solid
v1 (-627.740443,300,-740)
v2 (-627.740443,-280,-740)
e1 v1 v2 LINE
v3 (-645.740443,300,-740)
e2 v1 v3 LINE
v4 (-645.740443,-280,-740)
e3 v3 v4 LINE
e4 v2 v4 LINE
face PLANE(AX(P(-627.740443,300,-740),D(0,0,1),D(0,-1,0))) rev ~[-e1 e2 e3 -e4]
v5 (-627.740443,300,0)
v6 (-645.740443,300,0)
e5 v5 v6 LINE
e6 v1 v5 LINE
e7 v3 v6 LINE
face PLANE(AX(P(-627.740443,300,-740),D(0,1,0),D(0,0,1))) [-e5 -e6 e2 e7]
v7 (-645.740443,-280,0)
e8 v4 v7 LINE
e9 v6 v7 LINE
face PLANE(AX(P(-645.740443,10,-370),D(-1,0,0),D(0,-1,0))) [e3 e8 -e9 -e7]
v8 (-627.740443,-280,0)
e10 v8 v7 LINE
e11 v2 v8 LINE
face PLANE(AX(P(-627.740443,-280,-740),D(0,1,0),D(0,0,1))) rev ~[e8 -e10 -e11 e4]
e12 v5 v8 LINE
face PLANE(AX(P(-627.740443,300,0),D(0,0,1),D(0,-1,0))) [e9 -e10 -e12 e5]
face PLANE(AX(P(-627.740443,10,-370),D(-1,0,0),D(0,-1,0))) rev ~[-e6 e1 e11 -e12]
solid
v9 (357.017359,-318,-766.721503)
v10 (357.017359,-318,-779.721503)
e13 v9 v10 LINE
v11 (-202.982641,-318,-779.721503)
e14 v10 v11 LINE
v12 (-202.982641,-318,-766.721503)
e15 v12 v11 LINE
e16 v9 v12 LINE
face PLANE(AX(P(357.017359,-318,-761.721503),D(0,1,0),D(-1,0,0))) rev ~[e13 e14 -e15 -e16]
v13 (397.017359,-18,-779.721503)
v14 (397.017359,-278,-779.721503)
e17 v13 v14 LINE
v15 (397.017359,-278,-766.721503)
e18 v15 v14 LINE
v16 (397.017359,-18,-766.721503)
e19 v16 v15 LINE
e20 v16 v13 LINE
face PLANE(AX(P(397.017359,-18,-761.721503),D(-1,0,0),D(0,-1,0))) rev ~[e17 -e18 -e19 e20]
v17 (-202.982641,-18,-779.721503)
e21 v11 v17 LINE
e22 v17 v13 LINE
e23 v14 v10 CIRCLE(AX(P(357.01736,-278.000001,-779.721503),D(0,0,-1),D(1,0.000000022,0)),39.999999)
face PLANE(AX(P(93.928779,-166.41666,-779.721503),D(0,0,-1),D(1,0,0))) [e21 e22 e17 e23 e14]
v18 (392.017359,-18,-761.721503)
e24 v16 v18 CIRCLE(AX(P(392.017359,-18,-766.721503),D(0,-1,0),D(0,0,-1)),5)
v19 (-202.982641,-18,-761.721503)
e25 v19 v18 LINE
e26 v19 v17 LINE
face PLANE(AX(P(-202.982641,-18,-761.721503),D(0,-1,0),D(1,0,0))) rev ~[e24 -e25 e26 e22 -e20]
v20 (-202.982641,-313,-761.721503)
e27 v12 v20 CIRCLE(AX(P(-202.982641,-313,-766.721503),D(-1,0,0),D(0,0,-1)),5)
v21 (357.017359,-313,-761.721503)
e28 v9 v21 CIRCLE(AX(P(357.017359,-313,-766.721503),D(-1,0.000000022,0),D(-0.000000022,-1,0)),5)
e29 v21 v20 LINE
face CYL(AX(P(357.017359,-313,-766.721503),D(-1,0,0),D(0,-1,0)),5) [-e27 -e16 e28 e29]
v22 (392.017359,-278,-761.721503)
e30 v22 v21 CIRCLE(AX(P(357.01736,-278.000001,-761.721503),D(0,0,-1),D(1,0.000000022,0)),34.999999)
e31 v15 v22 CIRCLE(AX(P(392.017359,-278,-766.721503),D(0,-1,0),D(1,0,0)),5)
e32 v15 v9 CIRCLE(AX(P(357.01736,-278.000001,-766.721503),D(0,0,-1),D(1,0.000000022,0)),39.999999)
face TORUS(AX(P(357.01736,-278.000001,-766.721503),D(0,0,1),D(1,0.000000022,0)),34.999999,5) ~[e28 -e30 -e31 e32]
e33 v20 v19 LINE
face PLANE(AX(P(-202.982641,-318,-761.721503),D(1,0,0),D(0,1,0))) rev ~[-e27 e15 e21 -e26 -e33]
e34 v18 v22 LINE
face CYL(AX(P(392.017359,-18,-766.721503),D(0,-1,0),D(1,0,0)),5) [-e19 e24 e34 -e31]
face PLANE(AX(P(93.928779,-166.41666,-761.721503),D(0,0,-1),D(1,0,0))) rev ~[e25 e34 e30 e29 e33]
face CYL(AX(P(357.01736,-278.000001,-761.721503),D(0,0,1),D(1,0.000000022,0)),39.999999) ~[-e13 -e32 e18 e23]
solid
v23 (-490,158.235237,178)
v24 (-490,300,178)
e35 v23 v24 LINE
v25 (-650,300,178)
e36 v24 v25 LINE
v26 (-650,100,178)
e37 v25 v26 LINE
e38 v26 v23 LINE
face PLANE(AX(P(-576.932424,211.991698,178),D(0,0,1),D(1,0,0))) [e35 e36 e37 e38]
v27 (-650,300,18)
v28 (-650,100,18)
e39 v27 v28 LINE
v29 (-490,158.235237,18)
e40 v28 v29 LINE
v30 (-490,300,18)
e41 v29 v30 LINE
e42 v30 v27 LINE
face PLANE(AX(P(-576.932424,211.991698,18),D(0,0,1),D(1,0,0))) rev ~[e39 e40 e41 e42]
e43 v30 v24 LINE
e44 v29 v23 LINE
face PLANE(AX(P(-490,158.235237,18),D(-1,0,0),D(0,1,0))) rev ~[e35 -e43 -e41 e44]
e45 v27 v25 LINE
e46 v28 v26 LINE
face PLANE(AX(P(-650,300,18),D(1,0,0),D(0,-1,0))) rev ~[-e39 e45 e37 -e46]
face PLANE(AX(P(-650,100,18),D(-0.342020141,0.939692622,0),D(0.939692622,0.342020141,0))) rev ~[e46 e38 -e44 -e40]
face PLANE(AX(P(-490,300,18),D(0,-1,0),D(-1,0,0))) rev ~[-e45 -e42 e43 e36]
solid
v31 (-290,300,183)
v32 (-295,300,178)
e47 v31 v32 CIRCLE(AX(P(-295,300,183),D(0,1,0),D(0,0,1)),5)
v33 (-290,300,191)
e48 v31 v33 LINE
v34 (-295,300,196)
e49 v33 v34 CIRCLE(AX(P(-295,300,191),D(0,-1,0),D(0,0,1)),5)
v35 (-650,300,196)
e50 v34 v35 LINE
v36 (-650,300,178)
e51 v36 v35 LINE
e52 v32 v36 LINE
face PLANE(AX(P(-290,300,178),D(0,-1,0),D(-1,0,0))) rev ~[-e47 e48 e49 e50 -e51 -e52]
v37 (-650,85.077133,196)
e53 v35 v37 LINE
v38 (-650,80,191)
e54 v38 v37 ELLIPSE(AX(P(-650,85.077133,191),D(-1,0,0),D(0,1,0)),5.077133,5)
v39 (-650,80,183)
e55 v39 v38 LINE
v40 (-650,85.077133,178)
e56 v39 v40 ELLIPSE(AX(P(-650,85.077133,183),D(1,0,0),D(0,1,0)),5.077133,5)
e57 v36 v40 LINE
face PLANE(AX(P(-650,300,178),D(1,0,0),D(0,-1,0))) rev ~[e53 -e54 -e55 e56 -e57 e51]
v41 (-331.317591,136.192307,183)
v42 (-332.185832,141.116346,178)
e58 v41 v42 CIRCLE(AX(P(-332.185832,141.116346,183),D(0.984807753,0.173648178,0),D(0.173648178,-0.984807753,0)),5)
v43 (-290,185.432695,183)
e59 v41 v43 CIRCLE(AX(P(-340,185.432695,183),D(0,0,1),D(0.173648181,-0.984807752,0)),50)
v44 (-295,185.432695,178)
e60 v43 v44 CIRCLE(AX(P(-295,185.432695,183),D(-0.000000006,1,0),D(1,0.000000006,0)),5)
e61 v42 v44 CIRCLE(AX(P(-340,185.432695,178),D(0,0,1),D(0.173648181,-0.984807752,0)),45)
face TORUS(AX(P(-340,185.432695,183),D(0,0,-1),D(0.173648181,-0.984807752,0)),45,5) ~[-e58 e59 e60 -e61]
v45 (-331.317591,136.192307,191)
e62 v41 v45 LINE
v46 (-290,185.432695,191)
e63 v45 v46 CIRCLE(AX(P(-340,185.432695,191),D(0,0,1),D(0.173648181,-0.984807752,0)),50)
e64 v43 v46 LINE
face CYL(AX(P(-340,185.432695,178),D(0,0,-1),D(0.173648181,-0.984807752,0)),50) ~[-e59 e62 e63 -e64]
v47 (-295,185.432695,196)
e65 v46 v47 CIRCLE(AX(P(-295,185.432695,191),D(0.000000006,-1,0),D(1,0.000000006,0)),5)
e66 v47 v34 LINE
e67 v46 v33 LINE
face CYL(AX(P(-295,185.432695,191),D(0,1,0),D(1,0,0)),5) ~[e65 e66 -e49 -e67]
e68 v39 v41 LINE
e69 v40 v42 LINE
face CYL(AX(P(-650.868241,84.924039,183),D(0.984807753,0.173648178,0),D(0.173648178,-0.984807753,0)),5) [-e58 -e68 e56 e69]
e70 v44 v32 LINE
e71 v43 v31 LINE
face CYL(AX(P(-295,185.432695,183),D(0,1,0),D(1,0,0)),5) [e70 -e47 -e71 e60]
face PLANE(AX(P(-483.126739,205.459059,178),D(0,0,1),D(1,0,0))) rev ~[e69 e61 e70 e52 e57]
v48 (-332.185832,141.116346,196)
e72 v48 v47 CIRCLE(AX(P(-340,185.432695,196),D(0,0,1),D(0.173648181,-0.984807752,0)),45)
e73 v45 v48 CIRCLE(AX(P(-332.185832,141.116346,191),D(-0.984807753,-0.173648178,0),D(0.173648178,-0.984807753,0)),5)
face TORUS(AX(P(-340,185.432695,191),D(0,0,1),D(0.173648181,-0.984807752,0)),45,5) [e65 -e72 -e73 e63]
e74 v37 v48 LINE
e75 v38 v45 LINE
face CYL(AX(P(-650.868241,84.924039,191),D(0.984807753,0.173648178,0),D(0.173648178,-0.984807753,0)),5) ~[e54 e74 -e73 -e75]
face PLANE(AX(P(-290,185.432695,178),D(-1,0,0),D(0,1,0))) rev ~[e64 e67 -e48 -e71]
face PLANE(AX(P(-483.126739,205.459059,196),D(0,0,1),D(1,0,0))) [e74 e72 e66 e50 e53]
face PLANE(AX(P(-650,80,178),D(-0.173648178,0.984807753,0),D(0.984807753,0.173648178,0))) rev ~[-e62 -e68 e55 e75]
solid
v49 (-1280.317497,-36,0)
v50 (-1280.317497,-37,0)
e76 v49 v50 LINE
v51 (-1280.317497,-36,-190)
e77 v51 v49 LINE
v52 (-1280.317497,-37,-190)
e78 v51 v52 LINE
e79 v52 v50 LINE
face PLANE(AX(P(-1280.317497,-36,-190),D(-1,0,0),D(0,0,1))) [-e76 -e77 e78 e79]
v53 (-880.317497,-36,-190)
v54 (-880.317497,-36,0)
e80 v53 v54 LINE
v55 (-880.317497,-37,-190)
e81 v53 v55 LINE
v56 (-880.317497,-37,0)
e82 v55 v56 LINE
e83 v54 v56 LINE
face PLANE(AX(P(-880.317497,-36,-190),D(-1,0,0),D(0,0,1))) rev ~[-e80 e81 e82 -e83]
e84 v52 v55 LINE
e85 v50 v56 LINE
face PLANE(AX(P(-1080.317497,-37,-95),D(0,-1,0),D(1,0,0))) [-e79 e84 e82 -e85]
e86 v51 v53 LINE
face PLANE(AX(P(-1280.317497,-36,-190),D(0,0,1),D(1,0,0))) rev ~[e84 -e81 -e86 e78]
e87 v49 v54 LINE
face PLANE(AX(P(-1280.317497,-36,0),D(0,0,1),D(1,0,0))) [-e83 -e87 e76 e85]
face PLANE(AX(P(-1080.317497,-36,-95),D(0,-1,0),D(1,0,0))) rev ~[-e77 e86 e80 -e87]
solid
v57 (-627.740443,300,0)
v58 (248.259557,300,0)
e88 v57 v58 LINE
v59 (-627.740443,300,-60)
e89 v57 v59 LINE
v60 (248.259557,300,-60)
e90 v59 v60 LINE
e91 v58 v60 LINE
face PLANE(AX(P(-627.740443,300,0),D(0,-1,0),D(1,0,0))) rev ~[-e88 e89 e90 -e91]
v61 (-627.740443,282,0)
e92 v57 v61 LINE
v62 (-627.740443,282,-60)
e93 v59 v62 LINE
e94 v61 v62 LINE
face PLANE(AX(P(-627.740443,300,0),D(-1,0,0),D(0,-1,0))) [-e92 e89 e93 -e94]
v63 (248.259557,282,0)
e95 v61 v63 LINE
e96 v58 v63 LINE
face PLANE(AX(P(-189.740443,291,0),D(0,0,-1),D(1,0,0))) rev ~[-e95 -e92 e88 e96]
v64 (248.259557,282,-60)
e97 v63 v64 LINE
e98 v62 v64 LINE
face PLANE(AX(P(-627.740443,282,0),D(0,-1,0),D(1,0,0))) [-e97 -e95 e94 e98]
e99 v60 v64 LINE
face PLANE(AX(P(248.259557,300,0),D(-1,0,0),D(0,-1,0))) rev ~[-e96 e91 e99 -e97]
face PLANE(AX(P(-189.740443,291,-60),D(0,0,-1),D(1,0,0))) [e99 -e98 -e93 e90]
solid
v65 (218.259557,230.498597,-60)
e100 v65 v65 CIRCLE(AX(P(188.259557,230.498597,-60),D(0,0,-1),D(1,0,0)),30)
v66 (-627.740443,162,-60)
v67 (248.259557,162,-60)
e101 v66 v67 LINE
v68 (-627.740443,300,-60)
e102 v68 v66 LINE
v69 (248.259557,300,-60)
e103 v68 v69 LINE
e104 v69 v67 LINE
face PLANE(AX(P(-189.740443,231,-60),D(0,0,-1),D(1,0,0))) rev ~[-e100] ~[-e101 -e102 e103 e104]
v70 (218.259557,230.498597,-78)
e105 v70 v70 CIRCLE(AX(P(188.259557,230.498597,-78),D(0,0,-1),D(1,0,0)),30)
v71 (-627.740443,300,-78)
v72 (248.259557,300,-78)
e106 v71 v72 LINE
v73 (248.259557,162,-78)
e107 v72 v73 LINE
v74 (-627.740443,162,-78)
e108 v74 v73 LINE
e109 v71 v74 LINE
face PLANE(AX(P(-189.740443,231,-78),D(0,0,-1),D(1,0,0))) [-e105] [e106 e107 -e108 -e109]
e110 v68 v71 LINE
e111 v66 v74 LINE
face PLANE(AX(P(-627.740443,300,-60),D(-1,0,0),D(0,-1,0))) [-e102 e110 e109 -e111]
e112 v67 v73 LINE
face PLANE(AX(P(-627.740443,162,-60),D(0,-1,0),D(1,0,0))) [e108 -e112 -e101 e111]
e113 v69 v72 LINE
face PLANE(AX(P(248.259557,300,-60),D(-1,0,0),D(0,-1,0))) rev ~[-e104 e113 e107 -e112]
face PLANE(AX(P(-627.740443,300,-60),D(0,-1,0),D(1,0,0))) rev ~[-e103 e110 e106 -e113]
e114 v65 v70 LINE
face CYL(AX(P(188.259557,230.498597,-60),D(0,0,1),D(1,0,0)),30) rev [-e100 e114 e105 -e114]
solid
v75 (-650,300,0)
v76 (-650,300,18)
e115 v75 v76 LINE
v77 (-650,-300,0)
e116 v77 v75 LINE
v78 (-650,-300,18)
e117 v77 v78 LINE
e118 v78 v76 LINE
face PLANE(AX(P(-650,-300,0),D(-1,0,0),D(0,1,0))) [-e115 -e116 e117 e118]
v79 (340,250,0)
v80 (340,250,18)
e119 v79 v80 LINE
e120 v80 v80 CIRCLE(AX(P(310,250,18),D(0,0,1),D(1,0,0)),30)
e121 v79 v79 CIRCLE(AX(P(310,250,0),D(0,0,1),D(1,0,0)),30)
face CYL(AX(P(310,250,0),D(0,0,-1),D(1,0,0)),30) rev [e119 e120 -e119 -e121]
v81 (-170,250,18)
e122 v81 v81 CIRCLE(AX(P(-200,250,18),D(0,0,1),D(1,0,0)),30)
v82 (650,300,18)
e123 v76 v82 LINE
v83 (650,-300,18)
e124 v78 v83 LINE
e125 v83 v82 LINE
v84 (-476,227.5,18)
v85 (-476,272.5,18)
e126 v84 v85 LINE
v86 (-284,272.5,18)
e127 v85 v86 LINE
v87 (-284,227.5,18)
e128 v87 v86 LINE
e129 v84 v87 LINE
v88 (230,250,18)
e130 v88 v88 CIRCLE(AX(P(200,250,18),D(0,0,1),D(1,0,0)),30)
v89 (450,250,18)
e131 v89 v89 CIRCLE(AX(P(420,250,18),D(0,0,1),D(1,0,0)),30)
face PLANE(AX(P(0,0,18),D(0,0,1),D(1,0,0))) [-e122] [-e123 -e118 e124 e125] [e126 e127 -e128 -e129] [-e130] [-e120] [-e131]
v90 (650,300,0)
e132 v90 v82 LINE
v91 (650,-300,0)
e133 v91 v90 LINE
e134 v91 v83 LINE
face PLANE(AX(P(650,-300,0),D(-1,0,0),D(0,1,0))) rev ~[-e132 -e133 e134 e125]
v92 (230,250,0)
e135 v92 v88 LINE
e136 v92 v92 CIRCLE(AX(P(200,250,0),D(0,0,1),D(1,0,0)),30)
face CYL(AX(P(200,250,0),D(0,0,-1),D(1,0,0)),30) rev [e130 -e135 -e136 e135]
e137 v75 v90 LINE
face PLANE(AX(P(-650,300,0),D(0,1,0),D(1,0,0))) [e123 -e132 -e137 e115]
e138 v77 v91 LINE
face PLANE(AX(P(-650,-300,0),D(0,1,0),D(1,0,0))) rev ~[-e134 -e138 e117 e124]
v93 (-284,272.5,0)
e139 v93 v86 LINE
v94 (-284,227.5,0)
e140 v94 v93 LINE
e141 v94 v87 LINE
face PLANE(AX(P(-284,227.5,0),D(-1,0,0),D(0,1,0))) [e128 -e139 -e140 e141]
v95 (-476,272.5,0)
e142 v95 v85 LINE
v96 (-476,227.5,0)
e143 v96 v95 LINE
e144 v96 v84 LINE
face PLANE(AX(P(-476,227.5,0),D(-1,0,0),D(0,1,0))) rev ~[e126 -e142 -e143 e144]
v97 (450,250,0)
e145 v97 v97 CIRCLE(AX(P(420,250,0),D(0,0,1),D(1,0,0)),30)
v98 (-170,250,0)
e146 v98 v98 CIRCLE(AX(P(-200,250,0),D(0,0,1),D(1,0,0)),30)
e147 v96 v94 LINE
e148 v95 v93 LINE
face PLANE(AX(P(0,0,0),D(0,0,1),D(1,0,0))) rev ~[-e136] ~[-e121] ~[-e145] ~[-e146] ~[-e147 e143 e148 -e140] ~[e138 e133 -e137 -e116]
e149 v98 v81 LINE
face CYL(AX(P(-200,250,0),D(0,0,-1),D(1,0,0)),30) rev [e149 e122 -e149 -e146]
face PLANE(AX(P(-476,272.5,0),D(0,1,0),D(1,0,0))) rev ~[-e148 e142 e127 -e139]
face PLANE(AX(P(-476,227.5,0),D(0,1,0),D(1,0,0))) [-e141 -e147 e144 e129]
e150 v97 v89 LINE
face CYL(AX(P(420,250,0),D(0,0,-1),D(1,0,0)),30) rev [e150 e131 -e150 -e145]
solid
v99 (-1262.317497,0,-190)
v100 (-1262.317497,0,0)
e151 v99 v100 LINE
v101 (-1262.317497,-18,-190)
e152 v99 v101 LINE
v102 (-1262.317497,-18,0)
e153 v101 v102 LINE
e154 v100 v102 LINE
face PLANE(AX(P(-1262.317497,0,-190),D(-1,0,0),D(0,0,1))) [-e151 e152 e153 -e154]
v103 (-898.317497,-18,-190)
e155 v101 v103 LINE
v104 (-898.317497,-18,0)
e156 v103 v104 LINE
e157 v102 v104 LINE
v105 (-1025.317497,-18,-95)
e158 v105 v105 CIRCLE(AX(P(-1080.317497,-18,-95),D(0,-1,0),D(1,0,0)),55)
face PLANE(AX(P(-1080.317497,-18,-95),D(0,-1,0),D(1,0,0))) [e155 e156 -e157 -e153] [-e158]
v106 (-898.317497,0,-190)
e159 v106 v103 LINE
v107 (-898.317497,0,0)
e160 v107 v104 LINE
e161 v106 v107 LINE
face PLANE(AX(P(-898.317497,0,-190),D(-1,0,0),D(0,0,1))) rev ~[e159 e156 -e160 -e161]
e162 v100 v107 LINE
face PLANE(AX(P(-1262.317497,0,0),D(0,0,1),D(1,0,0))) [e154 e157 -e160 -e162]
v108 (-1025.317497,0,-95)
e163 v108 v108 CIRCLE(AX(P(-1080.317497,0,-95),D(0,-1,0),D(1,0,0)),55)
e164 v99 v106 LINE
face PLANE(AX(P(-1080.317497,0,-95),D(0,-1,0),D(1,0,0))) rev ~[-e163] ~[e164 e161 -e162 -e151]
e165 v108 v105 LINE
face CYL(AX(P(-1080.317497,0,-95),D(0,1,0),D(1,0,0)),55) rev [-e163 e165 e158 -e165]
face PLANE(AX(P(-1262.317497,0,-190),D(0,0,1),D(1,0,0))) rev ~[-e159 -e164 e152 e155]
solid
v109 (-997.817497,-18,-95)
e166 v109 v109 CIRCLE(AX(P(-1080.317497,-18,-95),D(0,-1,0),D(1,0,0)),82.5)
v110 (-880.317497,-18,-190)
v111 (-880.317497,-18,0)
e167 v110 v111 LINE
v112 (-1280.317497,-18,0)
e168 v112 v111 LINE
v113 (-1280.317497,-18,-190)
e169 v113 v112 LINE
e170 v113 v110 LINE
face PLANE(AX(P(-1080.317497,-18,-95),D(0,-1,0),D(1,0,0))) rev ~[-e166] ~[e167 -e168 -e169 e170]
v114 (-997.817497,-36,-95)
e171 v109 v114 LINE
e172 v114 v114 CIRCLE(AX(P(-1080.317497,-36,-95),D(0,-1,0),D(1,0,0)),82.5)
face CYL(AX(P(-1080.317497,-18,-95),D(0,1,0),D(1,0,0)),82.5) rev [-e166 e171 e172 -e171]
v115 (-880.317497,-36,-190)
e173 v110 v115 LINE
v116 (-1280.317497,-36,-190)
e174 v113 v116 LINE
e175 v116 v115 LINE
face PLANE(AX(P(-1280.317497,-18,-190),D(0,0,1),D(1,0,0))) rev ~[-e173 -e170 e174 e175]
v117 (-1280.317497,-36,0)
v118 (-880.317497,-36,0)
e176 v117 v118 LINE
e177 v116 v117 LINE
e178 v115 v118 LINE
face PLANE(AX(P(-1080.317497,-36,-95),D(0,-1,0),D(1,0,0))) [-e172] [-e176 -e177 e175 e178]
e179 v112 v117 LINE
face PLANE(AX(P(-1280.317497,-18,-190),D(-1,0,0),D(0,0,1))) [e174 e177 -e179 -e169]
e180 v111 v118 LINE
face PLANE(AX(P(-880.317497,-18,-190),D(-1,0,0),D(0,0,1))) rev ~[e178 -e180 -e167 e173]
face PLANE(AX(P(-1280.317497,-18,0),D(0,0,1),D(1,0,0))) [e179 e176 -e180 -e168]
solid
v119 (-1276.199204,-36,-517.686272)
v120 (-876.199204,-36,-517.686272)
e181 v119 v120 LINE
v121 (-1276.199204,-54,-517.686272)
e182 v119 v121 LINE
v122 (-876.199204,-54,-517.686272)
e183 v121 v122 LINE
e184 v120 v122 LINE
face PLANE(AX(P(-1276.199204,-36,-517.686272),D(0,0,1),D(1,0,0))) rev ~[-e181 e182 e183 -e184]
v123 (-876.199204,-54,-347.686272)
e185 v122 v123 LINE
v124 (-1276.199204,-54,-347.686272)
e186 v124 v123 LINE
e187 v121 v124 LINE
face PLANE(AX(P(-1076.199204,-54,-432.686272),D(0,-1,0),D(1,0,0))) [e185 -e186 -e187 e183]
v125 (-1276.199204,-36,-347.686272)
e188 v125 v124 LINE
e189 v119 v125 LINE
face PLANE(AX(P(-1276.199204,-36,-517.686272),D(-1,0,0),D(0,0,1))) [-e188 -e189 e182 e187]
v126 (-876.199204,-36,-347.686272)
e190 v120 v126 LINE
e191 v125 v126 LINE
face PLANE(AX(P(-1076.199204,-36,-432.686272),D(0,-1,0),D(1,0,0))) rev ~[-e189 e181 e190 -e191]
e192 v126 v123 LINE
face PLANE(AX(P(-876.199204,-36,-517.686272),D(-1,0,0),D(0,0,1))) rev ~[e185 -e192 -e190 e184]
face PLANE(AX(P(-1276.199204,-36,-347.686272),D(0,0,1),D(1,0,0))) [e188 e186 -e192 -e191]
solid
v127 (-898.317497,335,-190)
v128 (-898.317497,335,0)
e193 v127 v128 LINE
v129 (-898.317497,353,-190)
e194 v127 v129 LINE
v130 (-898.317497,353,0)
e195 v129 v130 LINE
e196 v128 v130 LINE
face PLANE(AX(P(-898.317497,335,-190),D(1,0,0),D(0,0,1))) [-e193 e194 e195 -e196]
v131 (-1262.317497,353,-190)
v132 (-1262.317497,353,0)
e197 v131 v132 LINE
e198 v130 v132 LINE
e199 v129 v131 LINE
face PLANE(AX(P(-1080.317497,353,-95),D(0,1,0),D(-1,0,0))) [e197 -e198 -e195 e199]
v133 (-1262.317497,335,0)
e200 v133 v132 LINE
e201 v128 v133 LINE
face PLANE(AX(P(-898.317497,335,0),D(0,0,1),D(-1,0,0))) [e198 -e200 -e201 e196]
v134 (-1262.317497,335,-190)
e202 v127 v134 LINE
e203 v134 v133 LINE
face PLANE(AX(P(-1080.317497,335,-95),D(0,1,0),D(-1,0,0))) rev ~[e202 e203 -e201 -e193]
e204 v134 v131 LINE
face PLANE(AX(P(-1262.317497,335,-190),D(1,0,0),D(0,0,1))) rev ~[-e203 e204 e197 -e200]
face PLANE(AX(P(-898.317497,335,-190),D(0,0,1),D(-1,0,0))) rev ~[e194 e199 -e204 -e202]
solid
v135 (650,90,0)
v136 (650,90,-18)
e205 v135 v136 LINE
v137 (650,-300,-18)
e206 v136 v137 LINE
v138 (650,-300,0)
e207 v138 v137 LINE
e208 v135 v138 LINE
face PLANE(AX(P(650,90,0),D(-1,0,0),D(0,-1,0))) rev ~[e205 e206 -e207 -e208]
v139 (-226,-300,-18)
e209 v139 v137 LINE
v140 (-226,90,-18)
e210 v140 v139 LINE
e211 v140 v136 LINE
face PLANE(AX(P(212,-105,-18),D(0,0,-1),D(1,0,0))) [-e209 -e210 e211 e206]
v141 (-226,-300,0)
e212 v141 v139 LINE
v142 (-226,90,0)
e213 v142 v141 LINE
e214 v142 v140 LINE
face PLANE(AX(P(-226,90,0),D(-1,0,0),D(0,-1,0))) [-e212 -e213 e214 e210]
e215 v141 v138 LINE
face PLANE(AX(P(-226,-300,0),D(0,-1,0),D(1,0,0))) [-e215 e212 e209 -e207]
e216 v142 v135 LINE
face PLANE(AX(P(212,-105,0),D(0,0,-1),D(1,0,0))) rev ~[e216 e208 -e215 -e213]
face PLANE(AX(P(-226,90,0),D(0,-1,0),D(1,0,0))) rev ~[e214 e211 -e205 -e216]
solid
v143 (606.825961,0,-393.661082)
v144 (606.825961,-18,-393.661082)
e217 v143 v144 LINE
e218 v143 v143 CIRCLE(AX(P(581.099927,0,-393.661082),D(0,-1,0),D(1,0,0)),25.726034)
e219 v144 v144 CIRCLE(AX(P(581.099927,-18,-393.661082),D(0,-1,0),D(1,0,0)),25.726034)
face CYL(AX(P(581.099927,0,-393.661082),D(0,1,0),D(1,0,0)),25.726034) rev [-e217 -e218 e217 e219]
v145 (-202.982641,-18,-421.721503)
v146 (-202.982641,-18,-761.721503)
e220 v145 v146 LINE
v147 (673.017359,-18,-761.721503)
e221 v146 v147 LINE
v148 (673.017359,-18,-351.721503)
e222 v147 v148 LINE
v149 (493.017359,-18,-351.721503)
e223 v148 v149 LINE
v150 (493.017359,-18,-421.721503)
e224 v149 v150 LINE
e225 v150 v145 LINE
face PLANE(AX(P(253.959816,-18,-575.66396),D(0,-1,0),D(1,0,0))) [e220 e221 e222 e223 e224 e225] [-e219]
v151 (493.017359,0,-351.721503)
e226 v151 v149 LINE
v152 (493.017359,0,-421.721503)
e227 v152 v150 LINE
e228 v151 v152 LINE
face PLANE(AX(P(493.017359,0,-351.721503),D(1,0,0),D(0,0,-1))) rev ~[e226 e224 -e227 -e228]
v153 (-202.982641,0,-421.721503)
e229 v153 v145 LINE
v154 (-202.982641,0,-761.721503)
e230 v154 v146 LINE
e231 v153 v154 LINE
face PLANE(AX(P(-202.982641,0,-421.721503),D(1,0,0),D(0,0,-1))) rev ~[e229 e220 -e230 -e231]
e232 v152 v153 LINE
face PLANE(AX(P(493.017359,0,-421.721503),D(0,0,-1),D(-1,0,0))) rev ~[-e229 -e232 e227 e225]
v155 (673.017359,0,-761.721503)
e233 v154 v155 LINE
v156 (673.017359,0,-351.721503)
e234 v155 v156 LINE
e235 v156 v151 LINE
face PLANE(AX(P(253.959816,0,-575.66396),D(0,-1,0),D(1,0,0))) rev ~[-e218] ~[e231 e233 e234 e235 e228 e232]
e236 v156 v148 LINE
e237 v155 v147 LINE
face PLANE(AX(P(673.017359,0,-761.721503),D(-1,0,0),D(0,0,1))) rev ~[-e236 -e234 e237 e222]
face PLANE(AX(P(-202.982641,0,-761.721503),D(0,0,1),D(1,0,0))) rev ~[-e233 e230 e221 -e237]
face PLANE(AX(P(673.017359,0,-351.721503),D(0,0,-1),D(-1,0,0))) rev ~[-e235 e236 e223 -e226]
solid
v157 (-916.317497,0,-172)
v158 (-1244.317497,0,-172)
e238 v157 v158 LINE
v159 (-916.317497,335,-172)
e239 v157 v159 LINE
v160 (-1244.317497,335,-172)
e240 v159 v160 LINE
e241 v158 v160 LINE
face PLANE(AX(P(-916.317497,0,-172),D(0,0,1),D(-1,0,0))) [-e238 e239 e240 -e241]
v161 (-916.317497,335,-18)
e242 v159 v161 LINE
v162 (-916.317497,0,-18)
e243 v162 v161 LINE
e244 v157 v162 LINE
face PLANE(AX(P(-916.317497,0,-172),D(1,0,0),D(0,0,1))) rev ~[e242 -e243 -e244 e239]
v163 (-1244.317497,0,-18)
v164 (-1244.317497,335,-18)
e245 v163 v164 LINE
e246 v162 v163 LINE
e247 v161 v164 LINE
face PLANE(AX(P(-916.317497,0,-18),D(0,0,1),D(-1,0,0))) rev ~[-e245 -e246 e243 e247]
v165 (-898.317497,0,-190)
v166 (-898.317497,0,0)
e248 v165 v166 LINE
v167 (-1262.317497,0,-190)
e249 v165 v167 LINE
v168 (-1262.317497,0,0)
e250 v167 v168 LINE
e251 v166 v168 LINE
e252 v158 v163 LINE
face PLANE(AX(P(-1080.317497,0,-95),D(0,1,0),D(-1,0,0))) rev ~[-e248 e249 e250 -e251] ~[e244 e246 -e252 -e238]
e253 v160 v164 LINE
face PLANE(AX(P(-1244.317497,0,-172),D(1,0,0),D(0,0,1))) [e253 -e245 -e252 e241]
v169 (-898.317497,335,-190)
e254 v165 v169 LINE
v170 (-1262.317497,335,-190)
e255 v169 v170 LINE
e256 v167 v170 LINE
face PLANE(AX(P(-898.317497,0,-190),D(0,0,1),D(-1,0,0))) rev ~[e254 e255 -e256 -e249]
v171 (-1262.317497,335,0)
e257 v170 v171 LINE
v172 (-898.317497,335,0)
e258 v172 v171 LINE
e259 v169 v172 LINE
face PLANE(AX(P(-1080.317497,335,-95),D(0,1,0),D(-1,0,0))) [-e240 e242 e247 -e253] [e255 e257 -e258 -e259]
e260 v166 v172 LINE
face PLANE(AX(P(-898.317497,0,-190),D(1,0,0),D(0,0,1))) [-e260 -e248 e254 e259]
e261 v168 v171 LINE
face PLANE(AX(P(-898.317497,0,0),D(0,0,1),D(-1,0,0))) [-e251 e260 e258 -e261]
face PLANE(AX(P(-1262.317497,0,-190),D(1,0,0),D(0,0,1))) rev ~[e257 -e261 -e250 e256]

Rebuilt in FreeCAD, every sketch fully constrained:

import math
import FreeCAD as App
import Part
import Sketcher
from FreeCAD import Vector
Q = App.Units.Quantity


def edges_at(feature, points):
    """Names of the edges that pass closest to the given points."""
    edges = feature.Shape.Edges
    near = lambda p: min(range(len(edges)), key=lambda i: edges[i].distToShape(Part.Vertex(*p))[0])
    return sorted({f"Edge{near(p) + 1}" for p in points})


def add_polygon(sketch, points):
    """Adds a closed chain of lines whose ends are joined by coincident constraints."""
    first, n = sketch.GeometryCount, len(points)
    for a, b in zip(points, points[1:] + points[:1]):
        sketch.addGeometry(Part.LineSegment(App.Vector(*a, 0), App.Vector(*b, 0)), False)
    for i in range(n):
        sketch.addConstraint(Sketcher.Constraint("Coincident", first + i, 2, first + (i + 1) % n, 1))

doc = App.newDocument("Part")
body = doc.addObject("PartDesign::Body", "Body")

sketch1 = body.newObject("Sketcher::SketchObject", "Sketch")
sketch1.AttachmentSupport = (doc.getObject("XY_Plane"), [""])
sketch1.MapMode = "FlatFace"
add_polygon(sketch1, [(-650, 300), (-650, -300), (650, -300), (650, 300)])
add_polygon(sketch1, [(-284, 228), (-476, 228), (-476, 272), (-284, 272)])
sketch1.addGeometry(Part.Circle(Vector(-200, 250, 0), Vector(0, 0, 1), 30), False)
sketch1.addGeometry(Part.Circle(Vector(200, 250, 0), Vector(0, 0, 1), 30), False)
sketch1.addGeometry(Part.Circle(Vector(310, 250, 0), Vector(0, 0, 1), 30), False)
sketch1.addGeometry(Part.Circle(Vector(420, 250, 0), Vector(0, 0, 1), 30), False)
sketch1.addConstraint(Sketcher.Constraint("Vertical", 0))
sketch1.addConstraint(Sketcher.Constraint("Horizontal", 1))
sketch1.addConstraint(Sketcher.Constraint("Vertical", 2))
sketch1.addConstraint(Sketcher.Constraint("Horizontal", 3))
sketch1.addConstraint(Sketcher.Constraint("Horizontal", 4))
sketch1.addConstraint(Sketcher.Constraint("Vertical", 5))
sketch1.addConstraint(Sketcher.Constraint("Horizontal", 6))
sketch1.addConstraint(Sketcher.Constraint("Vertical", 7))
sketch1.addConstraint(Sketcher.Constraint("Equal", 8, 9))
sketch1.addConstraint(Sketcher.Constraint("Equal", 9, 10))
sketch1.addConstraint(Sketcher.Constraint("Equal", 10, 11))
sketch1.addConstraint(Sketcher.Constraint("Symmetric", 0, 2, 2, 2, -1, 1))
sketch1.addConstraint(Sketcher.Constraint("Symmetric", 8, 3, 9, 3, -2))
sketch1.addConstraint(Sketcher.Constraint("Horizontal", 9, 3, 10, 3))
sketch1.addConstraint(Sketcher.Constraint("Horizontal", 10, 3, 11, 3))
sketch1.addConstraint(Sketcher.Constraint("Diameter", 8, 60.0))
sketch1.addConstraint(Sketcher.Constraint("DistanceX", 1, 1, 1, 2, 1300.0))
sketch1.addConstraint(Sketcher.Constraint("DistanceX", 4, 2, 4, 1, 192.0))
sketch1.addConstraint(Sketcher.Constraint("DistanceY", 0, 2, 0, 1, 600.0))
sketch1.addConstraint(Sketcher.Constraint("DistanceY", 5, 1, 5, 2, 45.0))
sketch1.addConstraint(Sketcher.Constraint("DistanceX", 8, 3, -1, 1, 200.0))
sketch1.addConstraint(Sketcher.Constraint("DistanceY", -1, 1, 8, 3, 250.0))
sketch1.addConstraint(Sketcher.Constraint("DistanceX", -1, 1, 10, 3, 310.0))
sketch1.addConstraint(Sketcher.Constraint("DistanceX", -1, 1, 11, 3, 420.0))
sketch1.addConstraint(Sketcher.Constraint("DistanceX", 4, 2, -1, 1, 476.0))
sketch1.addConstraint(Sketcher.Constraint("DistanceY", -1, 1, 4, 2, 227.5))
pad1 = body.newObject("PartDesign::Pad", "Pad")
pad1.Profile = sketch1
pad1.Length = 18
body2 = doc.addObject("PartDesign::Body", "Body001")

sketch2 = body2.newObject("Sketcher::SketchObject", "Sketch001")
sketch2.AttachmentSupport = (doc.getObject("XY_Plane001"), [""])
sketch2.MapMode = "FlatFace"
add_polygon(sketch2, [(-628, 282), (-628, 300), (248, 300), (248, 282)])
sketch2.addConstraint(Sketcher.Constraint("Vertical", 0))
sketch2.addConstraint(Sketcher.Constraint("Horizontal", 1))
sketch2.addConstraint(Sketcher.Constraint("Vertical", 2))
sketch2.addConstraint(Sketcher.Constraint("Horizontal", 3))
sketch2.addConstraint(Sketcher.Constraint("DistanceX", 1, 1, 1, 2, 876.0))
sketch2.addConstraint(Sketcher.Constraint("DistanceY", 0, 1, 0, 2, 18.0))
sketch2.addConstraint(Sketcher.Constraint("DistanceY", -1, 1, 0, 2, 300.0))
sketch2.addConstraint(Sketcher.Constraint("DistanceX", 0, 2, -1, 1, 627.740443))
pad2 = body2.newObject("PartDesign::Pad", "Pad001")
pad2.Profile = sketch2
pad2.Length = 60
pad2.Reversed = True
body3 = doc.addObject("PartDesign::Body", "Body002")

sketch3 = body3.newObject("Sketcher::SketchObject", "Sketch002")
sketch3.AttachmentSupport = (doc.getObject("XY_Plane002"), [""])
sketch3.MapMode = "FlatFace"
sketch3.AttachmentOffset = App.Placement(Vector(0, 0, -60), App.Rotation())
add_polygon(sketch3, [(-628, 162), (-628, 300), (248, 300), (248, 162)])
sketch3.addGeometry(Part.Circle(Vector(188, 230, 0), Vector(0, 0, 1), 30), False)
sketch3.addConstraint(Sketcher.Constraint("Vertical", 0))
sketch3.addConstraint(Sketcher.Constraint("Horizontal", 1))
sketch3.addConstraint(Sketcher.Constraint("Vertical", 2))
sketch3.addConstraint(Sketcher.Constraint("Horizontal", 3))
sketch3.addConstraint(Sketcher.Constraint("Diameter", 4, 60.0))
sketch3.addConstraint(Sketcher.Constraint("DistanceX", 1, 1, 1, 2, 876.0))
sketch3.addConstraint(Sketcher.Constraint("DistanceY", 0, 1, 0, 2, 138.0))
sketch3.addConstraint(Sketcher.Constraint("DistanceY", -1, 1, 0, 2, 300.0))
sketch3.addConstraint(Sketcher.Constraint("DistanceX", 0, 2, 4, 3, 816.0))
sketch3.addConstraint(Sketcher.Constraint("DistanceX", -1, 1, 4, 3, 188.259557))
sketch3.addConstraint(Sketcher.Constraint("DistanceY", -1, 1, 4, 3, 230.498597))
pad3 = body3.newObject("PartDesign::Pad", "Pad002")
pad3.Profile = sketch3
pad3.Length = 18
pad3.Reversed = True
body4 = doc.addObject("PartDesign::Body", "Body003")

sketch4 = body4.newObject("Sketcher::SketchObject", "Sketch003")
sketch4.AttachmentSupport = (doc.getObject("YZ_Plane003"), [""])
sketch4.MapMode = "FlatFace"
sketch4.AttachmentOffset = App.Placement(Vector(0, 0, -627.740443), App.Rotation())
add_polygon(sketch4, [(300, 0), (300, -740), (-280, -740), (-280, 0)])
sketch4.addConstraint(Sketcher.Constraint("Vertical", 0))
sketch4.addConstraint(Sketcher.Constraint("Horizontal", 1))
sketch4.addConstraint(Sketcher.Constraint("Vertical", 2))
sketch4.addConstraint(Sketcher.Constraint("Horizontal", 3))
sketch4.addConstraint(Sketcher.Constraint("PointOnObject", 2, 2, -1))
sketch4.addConstraint(Sketcher.Constraint("DistanceX", 1, 2, 1, 1, 580.0))
sketch4.addConstraint(Sketcher.Constraint("DistanceY", 0, 2, 0, 1, 740.0))
sketch4.addConstraint(Sketcher.Constraint("DistanceX", -1, 1, 0, 2, 300.0))
pad4 = body4.newObject("PartDesign::Pad", "Pad003")
pad4.Profile = sketch4
pad4.Length = 18
pad4.Reversed = True
body5 = doc.addObject("PartDesign::Body", "Body004")

sketch5 = body5.newObject("Sketcher::SketchObject", "Sketch004")
sketch5.AttachmentSupport = (doc.getObject("XY_Plane004"), [""])
sketch5.MapMode = "FlatFace"
sketch5.AttachmentOffset = App.Placement(Vector(0, 0, 18), App.Rotation())
add_polygon(sketch5, [(-490, 300), (-650, 300), (-650, 100), (-490, 158)])
sketch5.addConstraint(Sketcher.Constraint("Horizontal", 0))
sketch5.addConstraint(Sketcher.Constraint("Vertical", 1))
sketch5.addConstraint(Sketcher.Constraint("Vertical", 3))
sketch5.addConstraint(Sketcher.Constraint("DistanceX", 0, 2, 0, 1, 160.0))
sketch5.addConstraint(Sketcher.Constraint("DistanceY", 1, 2, 1, 1, 200.0))
sketch5.addConstraint(Sketcher.Constraint("Angle", 2, Q("20 deg")))
sketch5.addConstraint(Sketcher.Constraint("DistanceX", 0, 2, -1, 1, 650.0))
sketch5.addConstraint(Sketcher.Constraint("DistanceY", -1, 1, 0, 2, 300.0))
pad5 = body5.newObject("PartDesign::Pad", "Pad004")
pad5.Profile = sketch5
pad5.Length = 160
body6 = doc.addObject("PartDesign::Body", "Body005")

sketch6 = body6.newObject("Sketcher::SketchObject", "Sketch005")
sketch6.AttachmentSupport = (doc.getObject("XY_Plane005"), [""])
sketch6.MapMode = "FlatFace"
sketch6.AttachmentOffset = App.Placement(Vector(0, 0, 178), App.Rotation())
sketch6.addGeometry(Part.LineSegment(Vector(-650, 300, 0), Vector(-650, 80, 0)), False)
sketch6.addGeometry(Part.LineSegment(Vector(-650, 80, 0), Vector(-331, 136, 0)), False)
sketch6.addGeometry(Part.ArcOfCircle(Part.Circle(Vector(-340, 185, 0), Vector(0, 0, 1), 50), math.radians(-80), math.radians(0)), False)
sketch6.addGeometry(Part.LineSegment(Vector(-290, 185, 0), Vector(-290, 300, 0)), False)
sketch6.addGeometry(Part.LineSegment(Vector(-290, 300, 0), Vector(-650, 300, 0)), False)
sketch6.addConstraint(Sketcher.Constraint("Coincident", 0, 2, 1, 1))
sketch6.addConstraint(Sketcher.Constraint("Tangent", 1, 2, 2, 1))
sketch6.addConstraint(Sketcher.Constraint("Tangent", 2, 2, 3, 1))
sketch6.addConstraint(Sketcher.Constraint("Coincident", 3, 2, 4, 1))
sketch6.addConstraint(Sketcher.Constraint("Coincident", 4, 2, 0, 1))
sketch6.addConstraint(Sketcher.Constraint("Vertical", 0))
sketch6.addConstraint(Sketcher.Constraint("Vertical", 3))
sketch6.addConstraint(Sketcher.Constraint("Horizontal", 4))
sketch6.addConstraint(Sketcher.Constraint("Radius", 2, 50.0))
sketch6.addConstraint(Sketcher.Constraint("DistanceX", 4, 2, 4, 1, 360.0))
sketch6.addConstraint(Sketcher.Constraint("DistanceY", 0, 2, 0, 1, 220.0))
sketch6.addConstraint(Sketcher.Constraint("Angle", 1, Q("10 deg")))
sketch6.addConstraint(Sketcher.Constraint("DistanceX", 2, 3, -1, 1, 340.0))
sketch6.addConstraint(Sketcher.Constraint("DistanceY", -1, 1, 0, 2, 80.0))
pad6 = body6.newObject("PartDesign::Pad", "Pad005")
pad6.Profile = sketch6
pad6.Length = 18
doc.recompute()

fillet = body6.newObject("PartDesign::Fillet", "Fillet")
fillet.Base = (pad6, edges_at(pad6, [
    (-490.659, 108.096, 196),
    (-301.698, 153.293, 196),
    (-290, 242.716, 196),
    (-490.659, 108.096, 178),
    (-301.698, 153.293, 178),
    (-290, 242.716, 178),
]))
fillet.Radius = 5
body7 = doc.addObject("PartDesign::Body", "Body006")

sketch7 = body7.newObject("Sketcher::SketchObject", "Sketch006")
sketch7.AttachmentSupport = (doc.getObject("XZ_Plane006"), [""])
sketch7.MapMode = "FlatFace"
add_polygon(sketch7, [(-1262, 0), (-1262, -190), (-898, -190), (-898, 0)])
sketch7.addGeometry(Part.Circle(Vector(-1080, -95, 0), Vector(0, 0, 1), 55), False)
sketch7.addConstraint(Sketcher.Constraint("Vertical", 0))
sketch7.addConstraint(Sketcher.Constraint("Horizontal", 1))
sketch7.addConstraint(Sketcher.Constraint("Vertical", 2))
sketch7.addConstraint(Sketcher.Constraint("Horizontal", 3))
sketch7.addConstraint(Sketcher.Constraint("PointOnObject", 2, 2, -1))
sketch7.addConstraint(Sketcher.Constraint("Diameter", 4, 110.0))
sketch7.addConstraint(Sketcher.Constraint("DistanceX", 1, 1, 1, 2, 364.0))
sketch7.addConstraint(Sketcher.Constraint("DistanceY", 0, 2, 0, 1, 190.0))
sketch7.addConstraint(Sketcher.Constraint("DistanceY", 4, 3, -1, 1, 95.0))
sketch7.addConstraint(Sketcher.Constraint("DistanceX", 0, 2, 4, 3, 182.0))
sketch7.addConstraint(Sketcher.Constraint("DistanceX", 4, 3, -1, 1, 1080.317497))
pad7 = body7.newObject("PartDesign::Pad", "Pad006")
pad7.Profile = sketch7
pad7.Length = 18
body8 = doc.addObject("PartDesign::Body", "Body007")

sketch8 = body8.newObject("Sketcher::SketchObject", "Sketch007")
sketch8.AttachmentSupport = (doc.getObject("XZ_Plane007"), [""])
sketch8.MapMode = "FlatFace"
add_polygon(sketch8, [(-898, 0), (-898, -190), (-1262, -190), (-1262, 0)])
add_polygon(sketch8, [(-1244, -172), (-916, -172), (-916, -18), (-1244, -18)])
sketch8.addConstraint(Sketcher.Constraint("Vertical", 0))
sketch8.addConstraint(Sketcher.Constraint("Horizontal", 1))
sketch8.addConstraint(Sketcher.Constraint("Vertical", 2))
sketch8.addConstraint(Sketcher.Constraint("Horizontal", 3))
sketch8.addConstraint(Sketcher.Constraint("Horizontal", 4))
sketch8.addConstraint(Sketcher.Constraint("Vertical", 5))
sketch8.addConstraint(Sketcher.Constraint("Horizontal", 6))
sketch8.addConstraint(Sketcher.Constraint("Vertical", 7))
sketch8.addConstraint(Sketcher.Constraint("PointOnObject", 2, 2, -1))
sketch8.addConstraint(Sketcher.Constraint("DistanceX", 1, 2, 1, 1, 364.0))
sketch8.addConstraint(Sketcher.Constraint("DistanceX", 4, 1, 4, 2, 328.0))
sketch8.addConstraint(Sketcher.Constraint("DistanceY", 0, 2, 0, 1, 190.0))
sketch8.addConstraint(Sketcher.Constraint("DistanceY", 5, 1, 5, 2, 154.0))
sketch8.addConstraint(Sketcher.Constraint("DistanceY", 4, 2, -1, 1, 172.0))
sketch8.addConstraint(Sketcher.Constraint("DistanceX", 4, 2, 0, 2, 18.0))
sketch8.addConstraint(Sketcher.Constraint("DistanceX", 0, 2, -1, 1, 898.317497))
pad8 = body8.newObject("PartDesign::Pad", "Pad007")
pad8.Profile = sketch8
pad8.Length = 335
pad8.Reversed = True
body9 = doc.addObject("PartDesign::Body", "Body008")

sketch9 = body9.newObject("Sketcher::SketchObject", "Sketch008")
sketch9.AttachmentSupport = (doc.getObject("XZ_Plane008"), [""])
sketch9.MapMode = "FlatFace"
sketch9.AttachmentOffset = App.Placement(Vector(0, 0, 18), App.Rotation())
add_polygon(sketch9, [(-1280, 0), (-1280, -190), (-880, -190), (-880, 0)])
sketch9.addGeometry(Part.Circle(Vector(-1080, -95, 0), Vector(0, 0, 1), 82), False)
sketch9.addConstraint(Sketcher.Constraint("Vertical", 0))
sketch9.addConstraint(Sketcher.Constraint("Horizontal", 1))
sketch9.addConstraint(Sketcher.Constraint("Vertical", 2))
sketch9.addConstraint(Sketcher.Constraint("Horizontal", 3))
sketch9.addConstraint(Sketcher.Constraint("PointOnObject", 2, 2, -1))
sketch9.addConstraint(Sketcher.Constraint("Diameter", 4, 165.0))
sketch9.addConstraint(Sketcher.Constraint("DistanceX", 1, 1, 1, 2, 400.0))
sketch9.addConstraint(Sketcher.Constraint("DistanceY", 0, 2, 0, 1, 190.0))
sketch9.addConstraint(Sketcher.Constraint("DistanceY", 4, 3, -1, 1, 95.0))
sketch9.addConstraint(Sketcher.Constraint("DistanceX", 0, 2, 4, 3, 200.0))
sketch9.addConstraint(Sketcher.Constraint("DistanceX", 4, 3, -1, 1, 1080.317497))
pad9 = body9.newObject("PartDesign::Pad", "Pad008")
pad9.Profile = sketch9
pad9.Length = 18
body10 = doc.addObject("PartDesign::Body", "Body009")

sketch10 = body10.newObject("Sketcher::SketchObject", "Sketch009")
sketch10.AttachmentSupport = (doc.getObject("XZ_Plane009"), [""])
sketch10.MapMode = "FlatFace"
sketch10.AttachmentOffset = App.Placement(Vector(0, 0, -335), App.Rotation())
add_polygon(sketch10, [(-898, 0), (-898, -190), (-1262, -190), (-1262, 0)])
sketch10.addConstraint(Sketcher.Constraint("Vertical", 0))
sketch10.addConstraint(Sketcher.Constraint("Horizontal", 1))
sketch10.addConstraint(Sketcher.Constraint("Vertical", 2))
sketch10.addConstraint(Sketcher.Constraint("Horizontal", 3))
sketch10.addConstraint(Sketcher.Constraint("PointOnObject", 2, 2, -1))
sketch10.addConstraint(Sketcher.Constraint("DistanceX", 1, 2, 1, 1, 364.0))
sketch10.addConstraint(Sketcher.Constraint("DistanceY", 0, 2, 0, 1, 190.0))
sketch10.addConstraint(Sketcher.Constraint("DistanceX", 0, 2, -1, 1, 898.317497))
pad10 = body10.newObject("PartDesign::Pad", "Pad009")
pad10.Profile = sketch10
pad10.Length = 18
pad10.Reversed = True
body11 = doc.addObject("PartDesign::Body", "Body010")

sketch11 = body11.newObject("Sketcher::SketchObject", "Sketch010")
sketch11.AttachmentSupport = (doc.getObject("XY_Plane010"), [""])
sketch11.MapMode = "FlatFace"
add_polygon(sketch11, [(-226, -300), (-226, 90), (650, 90), (650, -300)])
sketch11.addConstraint(Sketcher.Constraint("Vertical", 0))
sketch11.addConstraint(Sketcher.Constraint("Horizontal", 1))
sketch11.addConstraint(Sketcher.Constraint("Vertical", 2))
sketch11.addConstraint(Sketcher.Constraint("Horizontal", 3))
sketch11.addConstraint(Sketcher.Constraint("DistanceX", 1, 1, 1, 2, 876.0))
sketch11.addConstraint(Sketcher.Constraint("DistanceY", 0, 1, 0, 2, 390.0))
sketch11.addConstraint(Sketcher.Constraint("DistanceX", 0, 2, -1, 1, 226.0))
sketch11.addConstraint(Sketcher.Constraint("DistanceY", -1, 1, 0, 2, 90.0))
pad11 = body11.newObject("PartDesign::Pad", "Pad010")
pad11.Profile = sketch11
pad11.Length = 18
pad11.Reversed = True
body12 = doc.addObject("PartDesign::Body", "Body011")

sketch12 = body12.newObject("Sketcher::SketchObject", "Sketch011")
sketch12.AttachmentSupport = (doc.getObject("XZ_Plane011"), [""])
sketch12.MapMode = "FlatFace"
add_polygon(sketch12, [(-203, -762), (673, -762), (673, -352), (493, -352), (493, -422), (-203, -422)])
sketch12.addGeometry(Part.Circle(Vector(581, -394, 0), Vector(0, 0, 1), 26), False)
sketch12.addConstraint(Sketcher.Constraint("Horizontal", 0))
sketch12.addConstraint(Sketcher.Constraint("Vertical", 1))
sketch12.addConstraint(Sketcher.Constraint("Horizontal", 2))
sketch12.addConstraint(Sketcher.Constraint("Vertical", 3))
sketch12.addConstraint(Sketcher.Constraint("Horizontal", 4))
sketch12.addConstraint(Sketcher.Constraint("Vertical", 5))
sketch12.addConstraint(Sketcher.Constraint("DistanceX", 0, 1, 0, 2, 876.0))
sketch12.addConstraint(Sketcher.Constraint("DistanceX", 2, 2, 2, 1, 180.0))
sketch12.addConstraint(Sketcher.Constraint("DistanceY", 1, 1, 1, 2, 410.0))
sketch12.addConstraint(Sketcher.Constraint("DistanceY", 3, 2, 3, 1, 70.0))
sketch12.addConstraint(Sketcher.Constraint("Diameter", 6, 51.452068))
sketch12.addConstraint(Sketcher.Constraint("DistanceY", 6, 3, -1, 1, 393.661082))
sketch12.addConstraint(Sketcher.Constraint("DistanceX", -1, 1, 0, 2, 673.017359))
sketch12.addConstraint(Sketcher.Constraint("DistanceY", 0, 2, 6, 3, 368.060421))
sketch12.addConstraint(Sketcher.Constraint("DistanceX", 4, 2, 6, 3, 784.082568))
pad12 = body12.newObject("PartDesign::Pad", "Pad011")
pad12.Profile = sketch12
pad12.Length = 18
body13 = doc.addObject("PartDesign::Body", "Body012")

sketch13 = body13.newObject("Sketcher::SketchObject", "Sketch012")
sketch13.AttachmentSupport = (doc.getObject("XY_Plane012"), [""])
sketch13.MapMode = "FlatFace"
sketch13.AttachmentOffset = App.Placement(Vector(0, 0, -761.721503), App.Rotation())
sketch13.addGeometry(Part.LineSegment(Vector(-203, -318, 0), Vector(-203, -18, 0)), False)
sketch13.addGeometry(Part.LineSegment(Vector(-203, -18, 0), Vector(397, -18, 0)), False)
sketch13.addGeometry(Part.LineSegment(Vector(397, -18, 0), Vector(397, -278, 0)), False)
sketch13.addGeometry(Part.ArcOfCircle(Part.Circle(Vector(357, -278, 0), Vector(0, 0, 1), 40), math.radians(-90), math.radians(0)), False)
sketch13.addGeometry(Part.LineSegment(Vector(357, -318, 0), Vector(-203, -318, 0)), False)
sketch13.addConstraint(Sketcher.Constraint("Coincident", 0, 2, 1, 1))
sketch13.addConstraint(Sketcher.Constraint("Coincident", 1, 2, 2, 1))
sketch13.addConstraint(Sketcher.Constraint("Tangent", 2, 2, 3, 2))
sketch13.addConstraint(Sketcher.Constraint("Tangent", 3, 1, 4, 1))
sketch13.addConstraint(Sketcher.Constraint("Coincident", 4, 2, 0, 1))
sketch13.addConstraint(Sketcher.Constraint("Vertical", 0))
sketch13.addConstraint(Sketcher.Constraint("Horizontal", 1))
sketch13.addConstraint(Sketcher.Constraint("Vertical", 2))
sketch13.addConstraint(Sketcher.Constraint("Horizontal", 4))
sketch13.addConstraint(Sketcher.Constraint("Radius", 3, 39.999999))
sketch13.addConstraint(Sketcher.Constraint("DistanceX", 1, 1, 1, 2, 600.0))
sketch13.addConstraint(Sketcher.Constraint("DistanceY", 0, 1, 0, 2, 300.0))
sketch13.addConstraint(Sketcher.Constraint("DistanceY", 3, 3, -1, 1, 278.000001))
sketch13.addConstraint(Sketcher.Constraint("DistanceX", -1, 1, 3, 3, 357.01736))
pad13 = body13.newObject("PartDesign::Pad", "Pad012")
pad13.Profile = sketch13
pad13.Length = 18
pad13.Reversed = True
doc.recompute()

fillet2 = body13.newObject("PartDesign::Fillet", "Fillet001")
fillet2.Base = (pad13, edges_at(pad13, [(77.017, -318, -761.722), (385.302, -306.284, -761.722), (397.017, -148, -761.722)]))
fillet2.Radius = 5
body14 = doc.addObject("PartDesign::Body", "Body013")

sketch14 = body14.newObject("Sketcher::SketchObject", "Sketch013")
sketch14.AttachmentSupport = (doc.getObject("XZ_Plane013"), [""])
sketch14.MapMode = "FlatFace"
sketch14.AttachmentOffset = App.Placement(Vector(0, 0, 36), App.Rotation())
add_polygon(sketch14, [(-1276, -348), (-1276, -518), (-876, -518), (-876, -348)])
sketch14.addConstraint(Sketcher.Constraint("Vertical", 0))
sketch14.addConstraint(Sketcher.Constraint("Horizontal", 1))
sketch14.addConstraint(Sketcher.Constraint("Vertical", 2))
sketch14.addConstraint(Sketcher.Constraint("Horizontal", 3))
sketch14.addConstraint(Sketcher.Constraint("DistanceX", 1, 1, 1, 2, 400.0))
sketch14.addConstraint(Sketcher.Constraint("DistanceY", 0, 2, 0, 1, 170.0))
sketch14.addConstraint(Sketcher.Constraint("DistanceY", 0, 2, -1, 1, 517.686272))
sketch14.addConstraint(Sketcher.Constraint("DistanceX", 0, 2, -1, 1, 1276.199204))
pad14 = body14.newObject("PartDesign::Pad", "Pad013")
pad14.Profile = sketch14
pad14.Length = 18
body15 = doc.addObject("PartDesign::Body", "Body014")

sketch15 = body15.newObject("Sketcher::SketchObject", "Sketch014")
sketch15.AttachmentSupport = (doc.getObject("XZ_Plane014"), [""])
sketch15.MapMode = "FlatFace"
sketch15.AttachmentOffset = App.Placement(Vector(0, 0, 36), App.Rotation())
add_polygon(sketch15, [(-1280, 0), (-1280, -190), (-880, -190), (-880, 0)])
sketch15.addConstraint(Sketcher.Constraint("Vertical", 0))
sketch15.addConstraint(Sketcher.Constraint("Horizontal", 1))
sketch15.addConstraint(Sketcher.Constraint("Vertical", 2))
sketch15.addConstraint(Sketcher.Constraint("Horizontal", 3))
sketch15.addConstraint(Sketcher.Constraint("PointOnObject", 2, 2, -1))
sketch15.addConstraint(Sketcher.Constraint("DistanceX", 1, 1, 1, 2, 400.0))
sketch15.addConstraint(Sketcher.Constraint("DistanceY", 0, 2, 0, 1, 190.0))
sketch15.addConstraint(Sketcher.Constraint("DistanceX", 0, 2, -1, 1, 1280.317497))
pad15 = body15.newObject("PartDesign::Pad", "Pad014")
pad15.Profile = sketch15
pad15.Length = 1

doc.recompute()
